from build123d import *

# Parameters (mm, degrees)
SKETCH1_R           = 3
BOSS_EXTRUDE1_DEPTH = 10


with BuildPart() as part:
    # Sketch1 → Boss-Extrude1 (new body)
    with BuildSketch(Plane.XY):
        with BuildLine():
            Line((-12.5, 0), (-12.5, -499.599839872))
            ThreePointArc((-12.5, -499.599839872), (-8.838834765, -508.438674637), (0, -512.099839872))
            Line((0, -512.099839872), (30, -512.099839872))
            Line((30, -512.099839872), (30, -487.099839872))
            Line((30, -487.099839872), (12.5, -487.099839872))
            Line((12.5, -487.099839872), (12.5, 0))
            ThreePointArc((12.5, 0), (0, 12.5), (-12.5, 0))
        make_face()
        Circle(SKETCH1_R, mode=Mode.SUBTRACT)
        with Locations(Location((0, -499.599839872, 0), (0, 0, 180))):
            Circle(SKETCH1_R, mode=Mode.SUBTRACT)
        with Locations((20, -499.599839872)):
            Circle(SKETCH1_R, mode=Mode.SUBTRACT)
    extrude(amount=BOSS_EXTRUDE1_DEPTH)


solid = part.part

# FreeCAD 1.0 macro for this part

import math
import FreeCAD as App
import Part
import Sketcher
from FreeCAD import Vector
Q = App.Units.Quantity

doc = App.newDocument("Part")
body = doc.addObject("PartDesign::Body", "Body")

# Sketch on XY plane
sketch1 = doc.addObject("Sketcher::SketchObject", "Sketch")
body.addObject(sketch1)
sketch1.AttachmentSupport = (doc.XY_Plane, [""])
sketch1.MapMode = "FlatFace"
sketch1.addGeometry([
    Part.LineSegment(Vector(-12.5, 0, 0), Vector(-12.5, -499.59984, 0)),  # 0
    Part.ArcOfCircle(Part.Circle(Vector(0, -499.59984, 0), Vector(0, 0, 1), 12.5), math.radians(180), math.radians(270)),  # 1
    Part.LineSegment(Vector(0, -512.09984, 0), Vector(30, -512.09984, 0)),  # 2
    Part.LineSegment(Vector(30, -512.09984, 0), Vector(30, -487.09984, 0)),  # 3
    Part.LineSegment(Vector(30, -487.09984, 0), Vector(12.5, -487.09984, 0)),  # 4
    Part.LineSegment(Vector(12.5, -487.09984, 0), Vector(12.5, 0, 0)),  # 5
    Part.ArcOfCircle(Part.Circle(Vector(0, 0, 0), Vector(0, 0, 1), 12.5), math.radians(0), math.radians(180)),  # 6
    Part.Circle(Vector(0, -499.59984, 0), Vector(0, 0, 1), 3),  # 7
    Part.Circle(Vector(20, -499.59984, 0), Vector(0, 0, 1), 3),  # 8
    Part.Circle(Vector(0, 0, 0), Vector(0, 0, 1), 3),  # 9
], False)
sketch1.addConstraint([
    Sketcher.Constraint("Tangent", 0, 2, 1, 1),
    Sketcher.Constraint("Tangent", 1, 2, 2, 1),
    Sketcher.Constraint("Coincident", 2, 2, 3, 1),
    Sketcher.Constraint("Coincident", 3, 2, 4, 1),
    Sketcher.Constraint("Coincident", 4, 2, 5, 1),
    Sketcher.Constraint("Tangent", 5, 2, 6, 1),
    Sketcher.Constraint("Tangent", 6, 2, 0, 1),
    Sketcher.Constraint("Vertical", 0),
    Sketcher.Constraint("Horizontal", 2),
    Sketcher.Constraint("Vertical", 3),
    Sketcher.Constraint("Horizontal", 4),
    Sketcher.Constraint("Vertical", 5),
    Sketcher.Constraint("Coincident", 6, 3, -1, 1),
    Sketcher.Constraint("Coincident", 9, 3, -1, 1),
    Sketcher.Constraint("Coincident", 7, 3, 1, 3),
    Sketcher.Constraint("Equal", 1, 6),
    Sketcher.Constraint("Equal", 7, 8),
    Sketcher.Constraint("Equal", 8, 9),
    Sketcher.Constraint("Horizontal", 7, 3, 8, 3),
    Sketcher.Constraint("Diameter", 7, Q("6 mm")),
    Sketcher.Constraint("Radius", 1, Q("12.5 mm")),
    Sketcher.Constraint("DistanceX", 2, 1, 2, 2, Q("30 mm")),
    Sketcher.Constraint("DistanceY", 3, 1, 3, 2, Q("25 mm")),
    Sketcher.Constraint("DistanceX", -1, 1, 8, 3, Q("20 mm")),
    Sketcher.Constraint("DistanceY", 0, 2, 0, 1, Q("499.59984 mm")),
])
pad1 = doc.addObject("PartDesign::Pad", "Pad")
body.addObject(pad1)
pad1.Profile = sketch1
pad1.Length = 10

doc.recompute()
